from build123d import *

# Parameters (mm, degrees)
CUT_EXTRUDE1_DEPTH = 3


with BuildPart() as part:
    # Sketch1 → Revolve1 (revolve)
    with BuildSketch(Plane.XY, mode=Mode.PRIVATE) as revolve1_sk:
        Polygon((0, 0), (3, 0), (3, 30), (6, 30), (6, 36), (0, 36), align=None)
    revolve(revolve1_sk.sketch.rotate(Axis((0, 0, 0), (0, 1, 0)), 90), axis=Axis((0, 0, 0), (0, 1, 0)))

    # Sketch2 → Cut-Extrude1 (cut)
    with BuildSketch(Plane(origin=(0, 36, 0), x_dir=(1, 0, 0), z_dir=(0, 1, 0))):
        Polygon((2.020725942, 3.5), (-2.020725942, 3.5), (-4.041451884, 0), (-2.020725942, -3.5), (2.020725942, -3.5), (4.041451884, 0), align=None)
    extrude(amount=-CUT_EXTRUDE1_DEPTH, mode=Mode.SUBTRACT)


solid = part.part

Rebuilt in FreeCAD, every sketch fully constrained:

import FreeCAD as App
import Part
import Sketcher
from FreeCAD import Vector
Q = App.Units.Quantity


def add_polygon(sketch, points):
    """Adds a closed chain of lines whose ends are joined by coincident constraints."""
    first, n = sketch.GeometryCount, len(points)
    for a, b in zip(points, points[1:] + points[:1]):
        sketch.addGeometry(Part.LineSegment(App.Vector(*a, 0), App.Vector(*b, 0)), False)
    for i in range(n):
        sketch.addConstraint(Sketcher.Constraint("Coincident", first + i, 2, first + (i + 1) % n, 1))

doc = App.newDocument("Part")
body = doc.addObject("PartDesign::Body", "Body")

sketch1 = body.newObject("Sketcher::SketchObject", "Sketch")
sketch1.AttachmentSupport = (doc.getObject("XY_Plane"), [""])
sketch1.MapMode = "FlatFace"
add_polygon(sketch1, [(0, 0), (3, 0), (3, 30), (6, 30), (6, 36), (0, 36)])
sketch1.addConstraint(Sketcher.Constraint("Horizontal", 0))
sketch1.addConstraint(Sketcher.Constraint("Vertical", 1))
sketch1.addConstraint(Sketcher.Constraint("Horizontal", 2))
sketch1.addConstraint(Sketcher.Constraint("Vertical", 3))
sketch1.addConstraint(Sketcher.Constraint("Horizontal", 4))
sketch1.addConstraint(Sketcher.Constraint("Vertical", 5))
sketch1.addConstraint(Sketcher.Constraint("Coincident", 5, 2, -1, 1))
sketch1.addConstraint(Sketcher.Constraint("Equal", 0, 2))
sketch1.addConstraint(Sketcher.Constraint("Equal", 4, 3))
sketch1.addConstraint(Sketcher.Constraint("DistanceX", 0, 1, 0, 2, 3.0))
sketch1.addConstraint(Sketcher.Constraint("DistanceY", 1, 1, 1, 2, 30.0))
revolution = body.newObject("PartDesign::Revolution", "Revolution")
revolution.Profile = sketch1
revolution.ReferenceAxis = (sketch1, ["V_Axis"])
revolution.Angle = 360

sketch2 = body.newObject("Sketcher::SketchObject", "Sketch001")
sketch2.AttachmentSupport = (doc.getObject("XZ_Plane"), [""])
sketch2.MapMode = "FlatFace"
sketch2.AttachmentOffset = App.Placement(Vector(0, 0, -36), App.Rotation())
add_polygon(sketch2, [(2.020726, -3.5), (-2.020726, -3.5), (-4.041452, 0), (-2.020726, 3.5), (2.020726, 3.5), (4.041452, 0)])
sketch2.addConstraint(Sketcher.Constraint("Horizontal", 0))
sketch2.addConstraint(Sketcher.Constraint("Horizontal", 3))
sketch2.addConstraint(Sketcher.Constraint("Symmetric", 0, 2, 3, 2, -1, 1))
sketch2.addConstraint(Sketcher.Constraint("Symmetric", 1, 2, 4, 2, -1, 1))
sketch2.addConstraint(Sketcher.Constraint("PointOnObject", 1, 2, -1))
sketch2.addConstraint(Sketcher.Constraint("Parallel", 2, 5))
sketch2.addConstraint(Sketcher.Constraint("Vertical", 0, 2, 2, 2))
sketch2.addConstraint(Sketcher.Constraint("Angle", 1, Q("120 deg")))
sketch2.addConstraint(Sketcher.Constraint("DistanceY", 0, 2, 2, 2, 7.0))
sketch2.addConstraint(Sketcher.Constraint("DistanceX", 0, 2, 0, 1, 4.041452))
pocket1 = body.newObject("PartDesign::Pocket", "Pocket")
pocket1.Profile = sketch2
pocket1.Length = 3
pocket1.Reversed = True

doc.recompute()
